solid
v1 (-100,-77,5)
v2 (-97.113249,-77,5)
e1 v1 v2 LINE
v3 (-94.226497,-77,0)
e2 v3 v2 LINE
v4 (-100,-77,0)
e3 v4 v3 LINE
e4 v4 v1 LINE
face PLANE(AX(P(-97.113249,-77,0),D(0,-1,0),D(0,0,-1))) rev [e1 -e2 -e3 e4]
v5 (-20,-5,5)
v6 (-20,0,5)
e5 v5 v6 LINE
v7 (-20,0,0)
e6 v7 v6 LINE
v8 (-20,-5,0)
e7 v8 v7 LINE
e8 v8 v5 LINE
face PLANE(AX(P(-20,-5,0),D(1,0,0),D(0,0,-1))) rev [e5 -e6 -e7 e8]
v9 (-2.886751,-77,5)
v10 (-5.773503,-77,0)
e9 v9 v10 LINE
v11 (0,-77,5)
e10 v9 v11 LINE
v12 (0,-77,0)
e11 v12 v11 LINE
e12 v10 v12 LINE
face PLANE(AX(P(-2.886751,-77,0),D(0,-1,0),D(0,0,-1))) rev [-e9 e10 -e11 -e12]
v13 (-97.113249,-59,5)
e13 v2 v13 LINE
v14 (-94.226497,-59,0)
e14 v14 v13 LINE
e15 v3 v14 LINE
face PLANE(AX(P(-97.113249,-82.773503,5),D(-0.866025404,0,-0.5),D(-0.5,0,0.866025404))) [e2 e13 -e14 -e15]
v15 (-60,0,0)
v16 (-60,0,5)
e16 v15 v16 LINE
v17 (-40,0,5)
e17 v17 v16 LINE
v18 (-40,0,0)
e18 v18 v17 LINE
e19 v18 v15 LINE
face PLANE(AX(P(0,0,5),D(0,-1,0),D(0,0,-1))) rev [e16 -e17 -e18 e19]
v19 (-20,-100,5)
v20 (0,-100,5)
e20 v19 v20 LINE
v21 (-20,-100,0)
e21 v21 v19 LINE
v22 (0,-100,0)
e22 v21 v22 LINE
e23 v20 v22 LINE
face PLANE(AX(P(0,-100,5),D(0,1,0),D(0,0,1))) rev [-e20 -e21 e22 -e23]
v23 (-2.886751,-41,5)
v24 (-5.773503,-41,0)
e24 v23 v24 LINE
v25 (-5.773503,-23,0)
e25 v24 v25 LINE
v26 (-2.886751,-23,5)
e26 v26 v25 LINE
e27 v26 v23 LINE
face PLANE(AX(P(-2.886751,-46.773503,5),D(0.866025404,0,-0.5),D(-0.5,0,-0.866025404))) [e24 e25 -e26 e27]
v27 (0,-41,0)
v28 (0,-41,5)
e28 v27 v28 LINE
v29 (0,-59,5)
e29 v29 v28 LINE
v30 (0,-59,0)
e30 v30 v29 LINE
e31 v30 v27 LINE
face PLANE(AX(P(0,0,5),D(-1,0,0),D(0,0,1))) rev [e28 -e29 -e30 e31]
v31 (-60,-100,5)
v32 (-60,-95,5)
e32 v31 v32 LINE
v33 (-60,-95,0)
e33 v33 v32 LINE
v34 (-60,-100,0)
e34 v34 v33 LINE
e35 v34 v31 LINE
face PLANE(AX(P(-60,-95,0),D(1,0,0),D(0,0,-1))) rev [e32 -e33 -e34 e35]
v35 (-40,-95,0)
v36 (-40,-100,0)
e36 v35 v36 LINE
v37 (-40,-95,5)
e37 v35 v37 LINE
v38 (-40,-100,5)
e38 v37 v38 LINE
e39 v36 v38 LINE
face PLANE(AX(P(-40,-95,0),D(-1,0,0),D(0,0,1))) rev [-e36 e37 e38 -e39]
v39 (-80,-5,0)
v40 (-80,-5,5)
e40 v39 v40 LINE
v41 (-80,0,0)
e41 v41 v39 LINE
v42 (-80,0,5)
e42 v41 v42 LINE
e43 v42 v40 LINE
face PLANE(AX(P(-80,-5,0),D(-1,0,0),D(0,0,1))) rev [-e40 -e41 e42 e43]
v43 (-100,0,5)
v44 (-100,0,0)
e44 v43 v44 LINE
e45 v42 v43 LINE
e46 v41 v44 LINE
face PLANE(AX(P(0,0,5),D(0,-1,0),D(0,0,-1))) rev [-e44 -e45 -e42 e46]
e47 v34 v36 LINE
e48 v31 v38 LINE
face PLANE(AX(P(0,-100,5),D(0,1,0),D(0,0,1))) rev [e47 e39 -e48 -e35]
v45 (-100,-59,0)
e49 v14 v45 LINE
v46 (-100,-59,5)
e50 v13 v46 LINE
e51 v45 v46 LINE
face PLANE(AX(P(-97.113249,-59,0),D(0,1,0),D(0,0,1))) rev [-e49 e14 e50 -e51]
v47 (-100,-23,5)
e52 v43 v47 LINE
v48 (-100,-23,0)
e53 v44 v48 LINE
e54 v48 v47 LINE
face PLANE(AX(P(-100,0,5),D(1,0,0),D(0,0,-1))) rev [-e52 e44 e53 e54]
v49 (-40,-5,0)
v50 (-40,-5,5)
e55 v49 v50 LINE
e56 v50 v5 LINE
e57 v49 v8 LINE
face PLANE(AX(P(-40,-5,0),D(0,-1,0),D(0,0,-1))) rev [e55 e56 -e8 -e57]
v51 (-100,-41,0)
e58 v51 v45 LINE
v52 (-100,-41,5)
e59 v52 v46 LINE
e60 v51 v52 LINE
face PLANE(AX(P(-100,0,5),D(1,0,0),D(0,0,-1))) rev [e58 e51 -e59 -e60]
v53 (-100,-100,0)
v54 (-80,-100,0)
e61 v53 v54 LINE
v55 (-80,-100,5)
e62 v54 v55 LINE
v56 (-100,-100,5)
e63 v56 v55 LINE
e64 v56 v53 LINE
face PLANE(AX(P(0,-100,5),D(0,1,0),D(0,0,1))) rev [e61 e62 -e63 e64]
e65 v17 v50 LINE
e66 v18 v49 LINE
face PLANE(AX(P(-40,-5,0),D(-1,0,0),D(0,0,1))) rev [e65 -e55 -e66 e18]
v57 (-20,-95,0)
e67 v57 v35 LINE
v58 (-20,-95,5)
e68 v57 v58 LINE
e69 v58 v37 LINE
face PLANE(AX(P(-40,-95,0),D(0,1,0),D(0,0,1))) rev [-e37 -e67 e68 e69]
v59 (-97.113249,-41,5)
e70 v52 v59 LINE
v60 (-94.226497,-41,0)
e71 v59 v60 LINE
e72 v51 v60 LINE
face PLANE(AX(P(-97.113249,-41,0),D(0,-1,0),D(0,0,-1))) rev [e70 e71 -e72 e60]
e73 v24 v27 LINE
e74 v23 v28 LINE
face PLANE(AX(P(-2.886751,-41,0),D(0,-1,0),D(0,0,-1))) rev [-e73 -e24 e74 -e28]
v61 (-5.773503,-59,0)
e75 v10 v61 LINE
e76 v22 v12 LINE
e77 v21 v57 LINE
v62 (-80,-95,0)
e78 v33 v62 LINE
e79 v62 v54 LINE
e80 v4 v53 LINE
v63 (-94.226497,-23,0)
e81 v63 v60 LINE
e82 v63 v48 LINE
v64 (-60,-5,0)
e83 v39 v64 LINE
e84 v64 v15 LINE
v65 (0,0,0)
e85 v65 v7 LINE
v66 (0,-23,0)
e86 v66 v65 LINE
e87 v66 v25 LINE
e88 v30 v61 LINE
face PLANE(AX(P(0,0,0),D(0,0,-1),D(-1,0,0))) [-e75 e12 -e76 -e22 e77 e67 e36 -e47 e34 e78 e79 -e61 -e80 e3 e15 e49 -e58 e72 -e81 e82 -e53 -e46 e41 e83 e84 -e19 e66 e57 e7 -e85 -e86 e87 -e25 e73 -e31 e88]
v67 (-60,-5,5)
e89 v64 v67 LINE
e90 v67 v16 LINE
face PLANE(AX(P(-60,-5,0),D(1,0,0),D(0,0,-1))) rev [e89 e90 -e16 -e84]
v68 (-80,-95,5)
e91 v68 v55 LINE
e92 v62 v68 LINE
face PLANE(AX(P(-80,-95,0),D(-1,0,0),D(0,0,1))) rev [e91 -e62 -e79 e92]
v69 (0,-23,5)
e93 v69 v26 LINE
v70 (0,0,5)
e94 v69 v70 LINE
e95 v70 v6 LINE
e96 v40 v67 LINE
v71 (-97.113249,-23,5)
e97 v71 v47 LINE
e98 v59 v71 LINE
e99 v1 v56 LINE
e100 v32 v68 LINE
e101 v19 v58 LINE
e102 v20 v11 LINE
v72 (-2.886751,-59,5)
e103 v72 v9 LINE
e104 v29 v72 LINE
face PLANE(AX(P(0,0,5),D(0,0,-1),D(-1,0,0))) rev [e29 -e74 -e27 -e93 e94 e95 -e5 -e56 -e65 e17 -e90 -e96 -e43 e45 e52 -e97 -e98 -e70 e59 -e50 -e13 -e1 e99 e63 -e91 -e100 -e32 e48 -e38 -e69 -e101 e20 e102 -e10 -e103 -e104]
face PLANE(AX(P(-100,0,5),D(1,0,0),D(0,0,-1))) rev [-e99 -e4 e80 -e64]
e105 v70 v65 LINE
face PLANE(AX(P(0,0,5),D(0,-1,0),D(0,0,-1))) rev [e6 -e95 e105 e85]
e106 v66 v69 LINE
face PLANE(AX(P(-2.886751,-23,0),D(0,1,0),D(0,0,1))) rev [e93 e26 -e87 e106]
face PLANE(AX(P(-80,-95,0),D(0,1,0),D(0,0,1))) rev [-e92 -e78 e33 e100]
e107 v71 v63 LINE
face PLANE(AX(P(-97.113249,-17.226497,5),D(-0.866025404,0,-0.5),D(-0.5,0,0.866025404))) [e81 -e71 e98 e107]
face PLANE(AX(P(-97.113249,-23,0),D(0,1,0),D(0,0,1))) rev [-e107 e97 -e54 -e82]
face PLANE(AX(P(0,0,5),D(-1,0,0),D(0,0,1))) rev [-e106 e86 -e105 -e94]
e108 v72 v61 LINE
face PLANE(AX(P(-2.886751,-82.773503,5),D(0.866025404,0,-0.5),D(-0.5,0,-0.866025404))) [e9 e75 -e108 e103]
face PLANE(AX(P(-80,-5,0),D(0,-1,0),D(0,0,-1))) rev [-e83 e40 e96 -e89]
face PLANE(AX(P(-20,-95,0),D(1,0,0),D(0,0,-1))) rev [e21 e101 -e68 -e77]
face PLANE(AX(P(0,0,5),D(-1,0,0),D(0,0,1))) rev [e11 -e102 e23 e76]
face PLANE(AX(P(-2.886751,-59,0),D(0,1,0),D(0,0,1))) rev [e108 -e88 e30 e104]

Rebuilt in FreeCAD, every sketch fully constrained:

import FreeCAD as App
import Part
import Sketcher
from FreeCAD import Vector
Q = App.Units.Quantity


def add_polygon(sketch, points):
    """Adds a closed chain of lines whose ends are joined by coincident constraints."""
    first, n = sketch.GeometryCount, len(points)
    for a, b in zip(points, points[1:] + points[:1]):
        sketch.addGeometry(Part.LineSegment(App.Vector(*a, 0), App.Vector(*b, 0)), False)
    for i in range(n):
        sketch.addConstraint(Sketcher.Constraint("Coincident", first + i, 2, first + (i + 1) % n, 1))

doc = App.newDocument("Part")
body = doc.addObject("PartDesign::Body", "Body")

# Sketch on XY plane
sketch1 = body.newObject("Sketcher::SketchObject", "Sketch")
sketch1.AttachmentSupport = (doc.getObject("XY_Plane"), [""])
sketch1.MapMode = "FlatFace"
add_polygon(sketch1, [(-100, 0), (-100, -100), (0, -100), (0, 0)])  # lines 0-3
sketch1.addConstraint(Sketcher.Constraint("Vertical", 0))
sketch1.addConstraint(Sketcher.Constraint("Horizontal", 1))
sketch1.addConstraint(Sketcher.Constraint("Vertical", 2))
sketch1.addConstraint(Sketcher.Constraint("Horizontal", 3))
sketch1.addConstraint(Sketcher.Constraint("Coincident", 2, 2, -1, 1))
sketch1.addConstraint(Sketcher.Constraint("Equal", 3, 0))
sketch1.addConstraint(Sketcher.Constraint("DistanceX", 1, 1, 1, 2, Q("100 mm")))
pad1 = body.newObject("PartDesign::Pad", "Pad")
pad1.Profile = sketch1
pad1.Length = 5

# Sketch on XY plane
sketch2 = body.newObject("Sketcher::SketchObject", "Sketch001")
sketch2.AttachmentSupport = (doc.getObject("XY_Plane"), [""])
sketch2.MapMode = "FlatFace"
sketch2.AttachmentOffset = App.Placement(Vector(0, 0, 5), App.Rotation())
add_polygon(sketch2, [(-80, 0), (-80, -5), (-60, -5), (-60, 0)])  # lines 0-3
add_polygon(sketch2, [(-40, 0), (-40, -5), (-20, -5), (-20, 0)])  # lines 4-7
add_polygon(sketch2, [(-40, -95), (-40, -100), (-20, -100), (-20, -95)])  # lines 8-11
add_polygon(sketch2, [(-80, -95), (-80, -100), (-60, -100), (-60, -95)])  # lines 12-15
sketch2.addConstraint(Sketcher.Constraint("Vertical", 0))
sketch2.addConstraint(Sketcher.Constraint("Horizontal", 1))
sketch2.addConstraint(Sketcher.Constraint("Vertical", 2))
sketch2.addConstraint(Sketcher.Constraint("Horizontal", 3))
sketch2.addConstraint(Sketcher.Constraint("Vertical", 4))
sketch2.addConstraint(Sketcher.Constraint("Horizontal", 5))
sketch2.addConstraint(Sketcher.Constraint("Vertical", 6))
sketch2.addConstraint(Sketcher.Constraint("Horizontal", 7))
sketch2.addConstraint(Sketcher.Constraint("Vertical", 8))
sketch2.addConstraint(Sketcher.Constraint("Horizontal", 9))
sketch2.addConstraint(Sketcher.Constraint("Vertical", 10))
sketch2.addConstraint(Sketcher.Constraint("Horizontal", 11))
sketch2.addConstraint(Sketcher.Constraint("Vertical", 12))
sketch2.addConstraint(Sketcher.Constraint("Horizontal", 13))
sketch2.addConstraint(Sketcher.Constraint("Vertical", 14))
sketch2.addConstraint(Sketcher.Constraint("Horizontal", 15))
sketch2.addConstraint(Sketcher.Constraint("PointOnObject", 2, 2, -1))
sketch2.addConstraint(Sketcher.Constraint("PointOnObject", 6, 2, -1))
sketch2.addConstraint(Sketcher.Constraint("Horizontal", 1, 2, 4, 2))
sketch2.addConstraint(Sketcher.Constraint("Horizontal", 9, 2, 12, 2))
sketch2.addConstraint(Sketcher.Constraint("Horizontal", 11, 2, 14, 2))
sketch2.addConstraint(Sketcher.Constraint("Vertical", 7, 2, 8, 2))
sketch2.addConstraint(Sketcher.Constraint("Vertical", 6, 2, 9, 2))
sketch2.addConstraint(Sketcher.Constraint("Vertical", 3, 2, 12, 2))
sketch2.addConstraint(Sketcher.Constraint("Vertical", 2, 2, 13, 2))
sketch2.addConstraint(Sketcher.Constraint("Equal", 3, 5))
sketch2.addConstraint(Sketcher.Constraint("Equal", 6, 8))
sketch2.addConstraint(Sketcher.Constraint("DistanceX", 1, 1, 1, 2, Q("20 mm")))
sketch2.addConstraint(Sketcher.Constraint("DistanceY", 0, 2, 0, 1, Q("5 mm")))
sketch2.addConstraint(Sketcher.Constraint("DistanceX", 0, 2, -1, 1, Q("80 mm")))
sketch2.addConstraint(Sketcher.Constraint("DistanceX", 4, 2, -1, 1, Q("40 mm")))
sketch2.addConstraint(Sketcher.Constraint("DistanceY", 8, 2, -1, 1, Q("100 mm")))
pocket1 = body.newObject("PartDesign::Pocket", "Pocket")
pocket1.Profile = sketch2
pocket1.Type = "ThroughAll"

# Sketch on XY plane
sketch3 = body.newObject("Sketcher::SketchObject", "Sketch002")
sketch3.AttachmentSupport = (doc.getObject("XY_Plane"), [""])
sketch3.MapMode = "FlatFace"
sketch3.AttachmentOffset = App.Placement(Vector(0, 0, 5), App.Rotation())
add_polygon(sketch3, [(-100, -23), (-100, -41), (-97.1, -41), (-97.1, -23)])  # lines 0-3
add_polygon(sketch3, [(-100, -59), (-100, -77), (-97.1, -77), (-97.1, -59)])  # lines 4-7
add_polygon(sketch3, [(-2.9, -59), (-2.9, -77), (0, -77), (0, -59)])  # lines 8-11
add_polygon(sketch3, [(-2.9, -23), (-2.9, -41), (0, -41), (0, -23)])  # lines 12-15
sketch3.addConstraint(Sketcher.Constraint("Vertical", 0))
sketch3.addConstraint(Sketcher.Constraint("Horizontal", 1))
sketch3.addConstraint(Sketcher.Constraint("Vertical", 2))
sketch3.addConstraint(Sketcher.Constraint("Horizontal", 3))
sketch3.addConstraint(Sketcher.Constraint("Vertical", 4))
sketch3.addConstraint(Sketcher.Constraint("Horizontal", 5))
sketch3.addConstraint(Sketcher.Constraint("Vertical", 6))
sketch3.addConstraint(Sketcher.Constraint("Horizontal", 7))
sketch3.addConstraint(Sketcher.Constraint("Vertical", 8))
sketch3.addConstraint(Sketcher.Constraint("Horizontal", 9))
sketch3.addConstraint(Sketcher.Constraint("Vertical", 10))
sketch3.addConstraint(Sketcher.Constraint("Horizontal", 11))
sketch3.addConstraint(Sketcher.Constraint("Vertical", 12))
sketch3.addConstraint(Sketcher.Constraint("Horizontal", 13))
sketch3.addConstraint(Sketcher.Constraint("Vertical", 14))
sketch3.addConstraint(Sketcher.Constraint("Horizontal", 15))
sketch3.addConstraint(Sketcher.Constraint("PointOnObject", 9, 2, -2))
sketch3.addConstraint(Sketcher.Constraint("PointOnObject", 13, 2, -2))
sketch3.addConstraint(Sketcher.Constraint("Horizontal", 5, 2, 8, 2))
sketch3.addConstraint(Sketcher.Constraint("Horizontal", 7, 2, 10, 2))
sketch3.addConstraint(Sketcher.Constraint("Horizontal", 1, 2, 12, 2))
sketch3.addConstraint(Sketcher.Constraint("Horizontal", 3, 2, 14, 2))
sketch3.addConstraint(Sketcher.Constraint("Vertical", 3, 2, 4, 2))
sketch3.addConstraint(Sketcher.Constraint("Vertical", 2, 2, 5, 2))
sketch3.addConstraint(Sketcher.Constraint("Vertical", 11, 2, 12, 2))
sketch3.addConstraint(Sketcher.Constraint("Equal", 7, 9))
sketch3.addConstraint(Sketcher.Constraint("Equal", 2, 4))
sketch3.addConstraint(Sketcher.Constraint("DistanceY", 0, 2, 0, 1, Q("18 mm")))
sketch3.addConstraint(Sketcher.Constraint("DistanceX", 0, 2, -1, 1, Q("100 mm")))
sketch3.addConstraint(Sketcher.Constraint("DistanceY", 0, 2, -1, 1, Q("41 mm")))
sketch3.addConstraint(Sketcher.Constraint("DistanceY", 4, 2, -1, 1, Q("77 mm")))
sketch3.addConstraint(Sketcher.Constraint("DistanceX", 1, 1, 1, 2, Q("2.886751 mm")))
pocket2 = body.newObject("PartDesign::Pocket", "Pocket001")
pocket2.Profile = sketch3
pocket2.Type = "ThroughAll"

# Sketch on XZ plane
sketch4 = body.newObject("Sketcher::SketchObject", "Sketch003")
sketch4.AttachmentSupport = (doc.getObject("XZ_Plane"), [""])
sketch4.MapMode = "FlatFace"
sketch4.AttachmentOffset = App.Placement(Vector(0, 0, 59), App.Rotation())
add_polygon(sketch4, [(-97.1, 5), (-97.1, 0), (-94.2, 0)])  # lines 0-2
sketch4.addConstraint(Sketcher.Constraint("Vertical", 0))
sketch4.addConstraint(Sketcher.Constraint("Horizontal", 1))
sketch4.addConstraint(Sketcher.Constraint("PointOnObject", 0, 2, -1))
sketch4.addConstraint(Sketcher.Constraint("DistanceY", 0, 2, 0, 1, Q("5 mm")))
sketch4.addConstraint(Sketcher.Constraint("Angle", 2, Q("120 deg")))
sketch4.addConstraint(Sketcher.Constraint("DistanceX", 0, 2, -1, 1, Q("97.113249 mm")))
pocket3 = body.newObject("PartDesign::Pocket", "Pocket002")
pocket3.Profile = sketch4
pocket3.Length = 18
pocket3.Reversed = True

# Sketch on XZ plane
sketch5 = body.newObject("Sketcher::SketchObject", "Sketch004")
sketch5.AttachmentSupport = (doc.getObject("XZ_Plane"), [""])
sketch5.MapMode = "FlatFace"
sketch5.AttachmentOffset = App.Placement(Vector(0, 0, 41), App.Rotation())
add_polygon(sketch5, [(-97.1, 0), (-97.1, 5), (-94.2, 0)])  # lines 0-2
sketch5.addConstraint(Sketcher.Constraint("Vertical", 0))
sketch5.addConstraint(Sketcher.Constraint("Horizontal", 2))
sketch5.addConstraint(Sketcher.Constraint("PointOnObject", 1, 2, -1))
sketch5.addConstraint(Sketcher.Constraint("DistanceY", 0, 1, 0, 2, Q("5 mm")))
sketch5.addConstraint(Sketcher.Constraint("Angle", 1, Q("-60 deg")))
sketch5.addConstraint(Sketcher.Constraint("DistanceX", 0, 2, -1, 1, Q("97.113249 mm")))
pocket4 = body.newObject("PartDesign::Pocket", "Pocket003")
pocket4.Profile = sketch5
pocket4.Length = 18

# Sketch on XZ plane
sketch6 = body.newObject("Sketcher::SketchObject", "Sketch005")
sketch6.AttachmentSupport = (doc.getObject("XZ_Plane"), [""])
sketch6.MapMode = "FlatFace"
sketch6.AttachmentOffset = App.Placement(Vector(0, 0, 59), App.Rotation())
add_polygon(sketch6, [(-2.9, 0), (-2.9, 5), (-5.8, 0)])  # lines 0-2
sketch6.addConstraint(Sketcher.Constraint("Vertical", 0))
sketch6.addConstraint(Sketcher.Constraint("Horizontal", 2))
sketch6.addConstraint(Sketcher.Constraint("PointOnObject", 1, 2, -1))
sketch6.addConstraint(Sketcher.Constraint("DistanceY", 0, 1, 0, 2, Q("5 mm")))
sketch6.addConstraint(Sketcher.Constraint("Angle", 1, Q("-120 deg")))
sketch6.addConstraint(Sketcher.Constraint("DistanceX", 0, 2, -1, 1, Q("2.886751 mm")))
pocket5 = body.newObject("PartDesign::Pocket", "Pocket004")
pocket5.Profile = sketch6
pocket5.Length = 18
pocket5.Reversed = True

# Sketch on XZ plane
sketch7 = body.newObject("Sketcher::SketchObject", "Sketch006")
sketch7.AttachmentSupport = (doc.getObject("XZ_Plane"), [""])
sketch7.MapMode = "FlatFace"
sketch7.AttachmentOffset = App.Placement(Vector(0, 0, 23), App.Rotation())
add_polygon(sketch7, [(-2.9, 0), (-2.9, 5), (-5.8, 0)])  # lines 0-2
sketch7.addConstraint(Sketcher.Constraint("Vertical", 0))
sketch7.addConstraint(Sketcher.Constraint("Horizontal", 2))
sketch7.addConstraint(Sketcher.Constraint("PointOnObject", 1, 2, -1))
sketch7.addConstraint(Sketcher.Constraint("DistanceY", 0, 1, 0, 2, Q("5 mm")))
sketch7.addConstraint(Sketcher.Constraint("Angle", 1, Q("-120 deg")))
sketch7.addConstraint(Sketcher.Constraint("DistanceX", 0, 2, -1, 1, Q("2.886751 mm")))
pocket6 = body.newObject("PartDesign::Pocket", "Pocket005")
pocket6.Profile = sketch7
pocket6.Length = 18
pocket6.Reversed = True

doc.recompute()
